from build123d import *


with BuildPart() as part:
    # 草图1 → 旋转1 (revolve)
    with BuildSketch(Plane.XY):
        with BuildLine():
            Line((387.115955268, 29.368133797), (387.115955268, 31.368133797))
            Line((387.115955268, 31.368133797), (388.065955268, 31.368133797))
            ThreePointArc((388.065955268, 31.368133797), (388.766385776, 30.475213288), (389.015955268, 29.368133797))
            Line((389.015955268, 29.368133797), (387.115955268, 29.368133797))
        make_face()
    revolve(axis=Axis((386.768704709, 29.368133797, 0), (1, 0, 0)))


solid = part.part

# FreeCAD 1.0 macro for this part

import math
import FreeCAD as App
import Part
import Sketcher

doc = App.newDocument("Part")
body = doc.addObject("PartDesign::Body", "Body")

sketch1 = doc.addObject("Sketcher::SketchObject", "Sketch")
body.addObject(sketch1)
sketch1.AttachmentSupport = (doc.XY_Plane, [""])
sketch1.MapMode = "FlatFace"
sketch1.addGeometry([
    Part.LineSegment(App.Vector(387.1, 31.4, 0), App.Vector(387.1, 29.4, 0)),
    Part.LineSegment(App.Vector(387.1, 29.4, 0), App.Vector(389, 29.4, 0)),
    Part.ArcOfCircle(Part.Circle(App.Vector(386.4, 29.4, 0), App.Vector(0, 0, 1), 2.6), math.radians(0), math.radians(51)),
    Part.LineSegment(App.Vector(388.1, 31.4, 0), App.Vector(387.1, 31.4, 0)),
], False)
sketch1.addGeometry(Part.LineSegment(App.Vector(386.4, 29.4, 0), App.Vector(389, 29.4, 0)), True)
sketch1.addConstraint([
    Sketcher.Constraint("Coincident", 0, 2, 1, 1),
    Sketcher.Constraint("Coincident", 1, 2, 2, 1),
    Sketcher.Constraint("Coincident", 2, 2, 3, 1),
    Sketcher.Constraint("Coincident", 3, 2, 0, 1),
    Sketcher.Constraint("Vertical", 0),
    Sketcher.Constraint("Horizontal", 1),
    Sketcher.Constraint("Horizontal", 3),
    Sketcher.Constraint("Horizontal", 4),
    Sketcher.Constraint("Coincident", 4, 1, 2, 3),
    Sketcher.Constraint("Coincident", 4, 2, 1, 2),
    Sketcher.Constraint("DistanceY", 0, 2, 0, 1, 2.0),
    Sketcher.Constraint("DistanceX", 1, 1, 1, 2, 1.9),
    Sketcher.Constraint("DistanceX", 3, 2, 3, 1, 0.95),
    Sketcher.Constraint("DistanceX", -1, 1, 2, 3, 386.435692),
    Sketcher.Constraint("DistanceY", -1, 1, 2, 3, 29.368134),
])
revolution = doc.addObject("PartDesign::Revolution", "Revolution")
body.addObject(revolution)
revolution.Profile = sketch1
revolution.ReferenceAxis = (sketch1, ["Axis0"])
revolution.Angle = 360

doc.recompute()
